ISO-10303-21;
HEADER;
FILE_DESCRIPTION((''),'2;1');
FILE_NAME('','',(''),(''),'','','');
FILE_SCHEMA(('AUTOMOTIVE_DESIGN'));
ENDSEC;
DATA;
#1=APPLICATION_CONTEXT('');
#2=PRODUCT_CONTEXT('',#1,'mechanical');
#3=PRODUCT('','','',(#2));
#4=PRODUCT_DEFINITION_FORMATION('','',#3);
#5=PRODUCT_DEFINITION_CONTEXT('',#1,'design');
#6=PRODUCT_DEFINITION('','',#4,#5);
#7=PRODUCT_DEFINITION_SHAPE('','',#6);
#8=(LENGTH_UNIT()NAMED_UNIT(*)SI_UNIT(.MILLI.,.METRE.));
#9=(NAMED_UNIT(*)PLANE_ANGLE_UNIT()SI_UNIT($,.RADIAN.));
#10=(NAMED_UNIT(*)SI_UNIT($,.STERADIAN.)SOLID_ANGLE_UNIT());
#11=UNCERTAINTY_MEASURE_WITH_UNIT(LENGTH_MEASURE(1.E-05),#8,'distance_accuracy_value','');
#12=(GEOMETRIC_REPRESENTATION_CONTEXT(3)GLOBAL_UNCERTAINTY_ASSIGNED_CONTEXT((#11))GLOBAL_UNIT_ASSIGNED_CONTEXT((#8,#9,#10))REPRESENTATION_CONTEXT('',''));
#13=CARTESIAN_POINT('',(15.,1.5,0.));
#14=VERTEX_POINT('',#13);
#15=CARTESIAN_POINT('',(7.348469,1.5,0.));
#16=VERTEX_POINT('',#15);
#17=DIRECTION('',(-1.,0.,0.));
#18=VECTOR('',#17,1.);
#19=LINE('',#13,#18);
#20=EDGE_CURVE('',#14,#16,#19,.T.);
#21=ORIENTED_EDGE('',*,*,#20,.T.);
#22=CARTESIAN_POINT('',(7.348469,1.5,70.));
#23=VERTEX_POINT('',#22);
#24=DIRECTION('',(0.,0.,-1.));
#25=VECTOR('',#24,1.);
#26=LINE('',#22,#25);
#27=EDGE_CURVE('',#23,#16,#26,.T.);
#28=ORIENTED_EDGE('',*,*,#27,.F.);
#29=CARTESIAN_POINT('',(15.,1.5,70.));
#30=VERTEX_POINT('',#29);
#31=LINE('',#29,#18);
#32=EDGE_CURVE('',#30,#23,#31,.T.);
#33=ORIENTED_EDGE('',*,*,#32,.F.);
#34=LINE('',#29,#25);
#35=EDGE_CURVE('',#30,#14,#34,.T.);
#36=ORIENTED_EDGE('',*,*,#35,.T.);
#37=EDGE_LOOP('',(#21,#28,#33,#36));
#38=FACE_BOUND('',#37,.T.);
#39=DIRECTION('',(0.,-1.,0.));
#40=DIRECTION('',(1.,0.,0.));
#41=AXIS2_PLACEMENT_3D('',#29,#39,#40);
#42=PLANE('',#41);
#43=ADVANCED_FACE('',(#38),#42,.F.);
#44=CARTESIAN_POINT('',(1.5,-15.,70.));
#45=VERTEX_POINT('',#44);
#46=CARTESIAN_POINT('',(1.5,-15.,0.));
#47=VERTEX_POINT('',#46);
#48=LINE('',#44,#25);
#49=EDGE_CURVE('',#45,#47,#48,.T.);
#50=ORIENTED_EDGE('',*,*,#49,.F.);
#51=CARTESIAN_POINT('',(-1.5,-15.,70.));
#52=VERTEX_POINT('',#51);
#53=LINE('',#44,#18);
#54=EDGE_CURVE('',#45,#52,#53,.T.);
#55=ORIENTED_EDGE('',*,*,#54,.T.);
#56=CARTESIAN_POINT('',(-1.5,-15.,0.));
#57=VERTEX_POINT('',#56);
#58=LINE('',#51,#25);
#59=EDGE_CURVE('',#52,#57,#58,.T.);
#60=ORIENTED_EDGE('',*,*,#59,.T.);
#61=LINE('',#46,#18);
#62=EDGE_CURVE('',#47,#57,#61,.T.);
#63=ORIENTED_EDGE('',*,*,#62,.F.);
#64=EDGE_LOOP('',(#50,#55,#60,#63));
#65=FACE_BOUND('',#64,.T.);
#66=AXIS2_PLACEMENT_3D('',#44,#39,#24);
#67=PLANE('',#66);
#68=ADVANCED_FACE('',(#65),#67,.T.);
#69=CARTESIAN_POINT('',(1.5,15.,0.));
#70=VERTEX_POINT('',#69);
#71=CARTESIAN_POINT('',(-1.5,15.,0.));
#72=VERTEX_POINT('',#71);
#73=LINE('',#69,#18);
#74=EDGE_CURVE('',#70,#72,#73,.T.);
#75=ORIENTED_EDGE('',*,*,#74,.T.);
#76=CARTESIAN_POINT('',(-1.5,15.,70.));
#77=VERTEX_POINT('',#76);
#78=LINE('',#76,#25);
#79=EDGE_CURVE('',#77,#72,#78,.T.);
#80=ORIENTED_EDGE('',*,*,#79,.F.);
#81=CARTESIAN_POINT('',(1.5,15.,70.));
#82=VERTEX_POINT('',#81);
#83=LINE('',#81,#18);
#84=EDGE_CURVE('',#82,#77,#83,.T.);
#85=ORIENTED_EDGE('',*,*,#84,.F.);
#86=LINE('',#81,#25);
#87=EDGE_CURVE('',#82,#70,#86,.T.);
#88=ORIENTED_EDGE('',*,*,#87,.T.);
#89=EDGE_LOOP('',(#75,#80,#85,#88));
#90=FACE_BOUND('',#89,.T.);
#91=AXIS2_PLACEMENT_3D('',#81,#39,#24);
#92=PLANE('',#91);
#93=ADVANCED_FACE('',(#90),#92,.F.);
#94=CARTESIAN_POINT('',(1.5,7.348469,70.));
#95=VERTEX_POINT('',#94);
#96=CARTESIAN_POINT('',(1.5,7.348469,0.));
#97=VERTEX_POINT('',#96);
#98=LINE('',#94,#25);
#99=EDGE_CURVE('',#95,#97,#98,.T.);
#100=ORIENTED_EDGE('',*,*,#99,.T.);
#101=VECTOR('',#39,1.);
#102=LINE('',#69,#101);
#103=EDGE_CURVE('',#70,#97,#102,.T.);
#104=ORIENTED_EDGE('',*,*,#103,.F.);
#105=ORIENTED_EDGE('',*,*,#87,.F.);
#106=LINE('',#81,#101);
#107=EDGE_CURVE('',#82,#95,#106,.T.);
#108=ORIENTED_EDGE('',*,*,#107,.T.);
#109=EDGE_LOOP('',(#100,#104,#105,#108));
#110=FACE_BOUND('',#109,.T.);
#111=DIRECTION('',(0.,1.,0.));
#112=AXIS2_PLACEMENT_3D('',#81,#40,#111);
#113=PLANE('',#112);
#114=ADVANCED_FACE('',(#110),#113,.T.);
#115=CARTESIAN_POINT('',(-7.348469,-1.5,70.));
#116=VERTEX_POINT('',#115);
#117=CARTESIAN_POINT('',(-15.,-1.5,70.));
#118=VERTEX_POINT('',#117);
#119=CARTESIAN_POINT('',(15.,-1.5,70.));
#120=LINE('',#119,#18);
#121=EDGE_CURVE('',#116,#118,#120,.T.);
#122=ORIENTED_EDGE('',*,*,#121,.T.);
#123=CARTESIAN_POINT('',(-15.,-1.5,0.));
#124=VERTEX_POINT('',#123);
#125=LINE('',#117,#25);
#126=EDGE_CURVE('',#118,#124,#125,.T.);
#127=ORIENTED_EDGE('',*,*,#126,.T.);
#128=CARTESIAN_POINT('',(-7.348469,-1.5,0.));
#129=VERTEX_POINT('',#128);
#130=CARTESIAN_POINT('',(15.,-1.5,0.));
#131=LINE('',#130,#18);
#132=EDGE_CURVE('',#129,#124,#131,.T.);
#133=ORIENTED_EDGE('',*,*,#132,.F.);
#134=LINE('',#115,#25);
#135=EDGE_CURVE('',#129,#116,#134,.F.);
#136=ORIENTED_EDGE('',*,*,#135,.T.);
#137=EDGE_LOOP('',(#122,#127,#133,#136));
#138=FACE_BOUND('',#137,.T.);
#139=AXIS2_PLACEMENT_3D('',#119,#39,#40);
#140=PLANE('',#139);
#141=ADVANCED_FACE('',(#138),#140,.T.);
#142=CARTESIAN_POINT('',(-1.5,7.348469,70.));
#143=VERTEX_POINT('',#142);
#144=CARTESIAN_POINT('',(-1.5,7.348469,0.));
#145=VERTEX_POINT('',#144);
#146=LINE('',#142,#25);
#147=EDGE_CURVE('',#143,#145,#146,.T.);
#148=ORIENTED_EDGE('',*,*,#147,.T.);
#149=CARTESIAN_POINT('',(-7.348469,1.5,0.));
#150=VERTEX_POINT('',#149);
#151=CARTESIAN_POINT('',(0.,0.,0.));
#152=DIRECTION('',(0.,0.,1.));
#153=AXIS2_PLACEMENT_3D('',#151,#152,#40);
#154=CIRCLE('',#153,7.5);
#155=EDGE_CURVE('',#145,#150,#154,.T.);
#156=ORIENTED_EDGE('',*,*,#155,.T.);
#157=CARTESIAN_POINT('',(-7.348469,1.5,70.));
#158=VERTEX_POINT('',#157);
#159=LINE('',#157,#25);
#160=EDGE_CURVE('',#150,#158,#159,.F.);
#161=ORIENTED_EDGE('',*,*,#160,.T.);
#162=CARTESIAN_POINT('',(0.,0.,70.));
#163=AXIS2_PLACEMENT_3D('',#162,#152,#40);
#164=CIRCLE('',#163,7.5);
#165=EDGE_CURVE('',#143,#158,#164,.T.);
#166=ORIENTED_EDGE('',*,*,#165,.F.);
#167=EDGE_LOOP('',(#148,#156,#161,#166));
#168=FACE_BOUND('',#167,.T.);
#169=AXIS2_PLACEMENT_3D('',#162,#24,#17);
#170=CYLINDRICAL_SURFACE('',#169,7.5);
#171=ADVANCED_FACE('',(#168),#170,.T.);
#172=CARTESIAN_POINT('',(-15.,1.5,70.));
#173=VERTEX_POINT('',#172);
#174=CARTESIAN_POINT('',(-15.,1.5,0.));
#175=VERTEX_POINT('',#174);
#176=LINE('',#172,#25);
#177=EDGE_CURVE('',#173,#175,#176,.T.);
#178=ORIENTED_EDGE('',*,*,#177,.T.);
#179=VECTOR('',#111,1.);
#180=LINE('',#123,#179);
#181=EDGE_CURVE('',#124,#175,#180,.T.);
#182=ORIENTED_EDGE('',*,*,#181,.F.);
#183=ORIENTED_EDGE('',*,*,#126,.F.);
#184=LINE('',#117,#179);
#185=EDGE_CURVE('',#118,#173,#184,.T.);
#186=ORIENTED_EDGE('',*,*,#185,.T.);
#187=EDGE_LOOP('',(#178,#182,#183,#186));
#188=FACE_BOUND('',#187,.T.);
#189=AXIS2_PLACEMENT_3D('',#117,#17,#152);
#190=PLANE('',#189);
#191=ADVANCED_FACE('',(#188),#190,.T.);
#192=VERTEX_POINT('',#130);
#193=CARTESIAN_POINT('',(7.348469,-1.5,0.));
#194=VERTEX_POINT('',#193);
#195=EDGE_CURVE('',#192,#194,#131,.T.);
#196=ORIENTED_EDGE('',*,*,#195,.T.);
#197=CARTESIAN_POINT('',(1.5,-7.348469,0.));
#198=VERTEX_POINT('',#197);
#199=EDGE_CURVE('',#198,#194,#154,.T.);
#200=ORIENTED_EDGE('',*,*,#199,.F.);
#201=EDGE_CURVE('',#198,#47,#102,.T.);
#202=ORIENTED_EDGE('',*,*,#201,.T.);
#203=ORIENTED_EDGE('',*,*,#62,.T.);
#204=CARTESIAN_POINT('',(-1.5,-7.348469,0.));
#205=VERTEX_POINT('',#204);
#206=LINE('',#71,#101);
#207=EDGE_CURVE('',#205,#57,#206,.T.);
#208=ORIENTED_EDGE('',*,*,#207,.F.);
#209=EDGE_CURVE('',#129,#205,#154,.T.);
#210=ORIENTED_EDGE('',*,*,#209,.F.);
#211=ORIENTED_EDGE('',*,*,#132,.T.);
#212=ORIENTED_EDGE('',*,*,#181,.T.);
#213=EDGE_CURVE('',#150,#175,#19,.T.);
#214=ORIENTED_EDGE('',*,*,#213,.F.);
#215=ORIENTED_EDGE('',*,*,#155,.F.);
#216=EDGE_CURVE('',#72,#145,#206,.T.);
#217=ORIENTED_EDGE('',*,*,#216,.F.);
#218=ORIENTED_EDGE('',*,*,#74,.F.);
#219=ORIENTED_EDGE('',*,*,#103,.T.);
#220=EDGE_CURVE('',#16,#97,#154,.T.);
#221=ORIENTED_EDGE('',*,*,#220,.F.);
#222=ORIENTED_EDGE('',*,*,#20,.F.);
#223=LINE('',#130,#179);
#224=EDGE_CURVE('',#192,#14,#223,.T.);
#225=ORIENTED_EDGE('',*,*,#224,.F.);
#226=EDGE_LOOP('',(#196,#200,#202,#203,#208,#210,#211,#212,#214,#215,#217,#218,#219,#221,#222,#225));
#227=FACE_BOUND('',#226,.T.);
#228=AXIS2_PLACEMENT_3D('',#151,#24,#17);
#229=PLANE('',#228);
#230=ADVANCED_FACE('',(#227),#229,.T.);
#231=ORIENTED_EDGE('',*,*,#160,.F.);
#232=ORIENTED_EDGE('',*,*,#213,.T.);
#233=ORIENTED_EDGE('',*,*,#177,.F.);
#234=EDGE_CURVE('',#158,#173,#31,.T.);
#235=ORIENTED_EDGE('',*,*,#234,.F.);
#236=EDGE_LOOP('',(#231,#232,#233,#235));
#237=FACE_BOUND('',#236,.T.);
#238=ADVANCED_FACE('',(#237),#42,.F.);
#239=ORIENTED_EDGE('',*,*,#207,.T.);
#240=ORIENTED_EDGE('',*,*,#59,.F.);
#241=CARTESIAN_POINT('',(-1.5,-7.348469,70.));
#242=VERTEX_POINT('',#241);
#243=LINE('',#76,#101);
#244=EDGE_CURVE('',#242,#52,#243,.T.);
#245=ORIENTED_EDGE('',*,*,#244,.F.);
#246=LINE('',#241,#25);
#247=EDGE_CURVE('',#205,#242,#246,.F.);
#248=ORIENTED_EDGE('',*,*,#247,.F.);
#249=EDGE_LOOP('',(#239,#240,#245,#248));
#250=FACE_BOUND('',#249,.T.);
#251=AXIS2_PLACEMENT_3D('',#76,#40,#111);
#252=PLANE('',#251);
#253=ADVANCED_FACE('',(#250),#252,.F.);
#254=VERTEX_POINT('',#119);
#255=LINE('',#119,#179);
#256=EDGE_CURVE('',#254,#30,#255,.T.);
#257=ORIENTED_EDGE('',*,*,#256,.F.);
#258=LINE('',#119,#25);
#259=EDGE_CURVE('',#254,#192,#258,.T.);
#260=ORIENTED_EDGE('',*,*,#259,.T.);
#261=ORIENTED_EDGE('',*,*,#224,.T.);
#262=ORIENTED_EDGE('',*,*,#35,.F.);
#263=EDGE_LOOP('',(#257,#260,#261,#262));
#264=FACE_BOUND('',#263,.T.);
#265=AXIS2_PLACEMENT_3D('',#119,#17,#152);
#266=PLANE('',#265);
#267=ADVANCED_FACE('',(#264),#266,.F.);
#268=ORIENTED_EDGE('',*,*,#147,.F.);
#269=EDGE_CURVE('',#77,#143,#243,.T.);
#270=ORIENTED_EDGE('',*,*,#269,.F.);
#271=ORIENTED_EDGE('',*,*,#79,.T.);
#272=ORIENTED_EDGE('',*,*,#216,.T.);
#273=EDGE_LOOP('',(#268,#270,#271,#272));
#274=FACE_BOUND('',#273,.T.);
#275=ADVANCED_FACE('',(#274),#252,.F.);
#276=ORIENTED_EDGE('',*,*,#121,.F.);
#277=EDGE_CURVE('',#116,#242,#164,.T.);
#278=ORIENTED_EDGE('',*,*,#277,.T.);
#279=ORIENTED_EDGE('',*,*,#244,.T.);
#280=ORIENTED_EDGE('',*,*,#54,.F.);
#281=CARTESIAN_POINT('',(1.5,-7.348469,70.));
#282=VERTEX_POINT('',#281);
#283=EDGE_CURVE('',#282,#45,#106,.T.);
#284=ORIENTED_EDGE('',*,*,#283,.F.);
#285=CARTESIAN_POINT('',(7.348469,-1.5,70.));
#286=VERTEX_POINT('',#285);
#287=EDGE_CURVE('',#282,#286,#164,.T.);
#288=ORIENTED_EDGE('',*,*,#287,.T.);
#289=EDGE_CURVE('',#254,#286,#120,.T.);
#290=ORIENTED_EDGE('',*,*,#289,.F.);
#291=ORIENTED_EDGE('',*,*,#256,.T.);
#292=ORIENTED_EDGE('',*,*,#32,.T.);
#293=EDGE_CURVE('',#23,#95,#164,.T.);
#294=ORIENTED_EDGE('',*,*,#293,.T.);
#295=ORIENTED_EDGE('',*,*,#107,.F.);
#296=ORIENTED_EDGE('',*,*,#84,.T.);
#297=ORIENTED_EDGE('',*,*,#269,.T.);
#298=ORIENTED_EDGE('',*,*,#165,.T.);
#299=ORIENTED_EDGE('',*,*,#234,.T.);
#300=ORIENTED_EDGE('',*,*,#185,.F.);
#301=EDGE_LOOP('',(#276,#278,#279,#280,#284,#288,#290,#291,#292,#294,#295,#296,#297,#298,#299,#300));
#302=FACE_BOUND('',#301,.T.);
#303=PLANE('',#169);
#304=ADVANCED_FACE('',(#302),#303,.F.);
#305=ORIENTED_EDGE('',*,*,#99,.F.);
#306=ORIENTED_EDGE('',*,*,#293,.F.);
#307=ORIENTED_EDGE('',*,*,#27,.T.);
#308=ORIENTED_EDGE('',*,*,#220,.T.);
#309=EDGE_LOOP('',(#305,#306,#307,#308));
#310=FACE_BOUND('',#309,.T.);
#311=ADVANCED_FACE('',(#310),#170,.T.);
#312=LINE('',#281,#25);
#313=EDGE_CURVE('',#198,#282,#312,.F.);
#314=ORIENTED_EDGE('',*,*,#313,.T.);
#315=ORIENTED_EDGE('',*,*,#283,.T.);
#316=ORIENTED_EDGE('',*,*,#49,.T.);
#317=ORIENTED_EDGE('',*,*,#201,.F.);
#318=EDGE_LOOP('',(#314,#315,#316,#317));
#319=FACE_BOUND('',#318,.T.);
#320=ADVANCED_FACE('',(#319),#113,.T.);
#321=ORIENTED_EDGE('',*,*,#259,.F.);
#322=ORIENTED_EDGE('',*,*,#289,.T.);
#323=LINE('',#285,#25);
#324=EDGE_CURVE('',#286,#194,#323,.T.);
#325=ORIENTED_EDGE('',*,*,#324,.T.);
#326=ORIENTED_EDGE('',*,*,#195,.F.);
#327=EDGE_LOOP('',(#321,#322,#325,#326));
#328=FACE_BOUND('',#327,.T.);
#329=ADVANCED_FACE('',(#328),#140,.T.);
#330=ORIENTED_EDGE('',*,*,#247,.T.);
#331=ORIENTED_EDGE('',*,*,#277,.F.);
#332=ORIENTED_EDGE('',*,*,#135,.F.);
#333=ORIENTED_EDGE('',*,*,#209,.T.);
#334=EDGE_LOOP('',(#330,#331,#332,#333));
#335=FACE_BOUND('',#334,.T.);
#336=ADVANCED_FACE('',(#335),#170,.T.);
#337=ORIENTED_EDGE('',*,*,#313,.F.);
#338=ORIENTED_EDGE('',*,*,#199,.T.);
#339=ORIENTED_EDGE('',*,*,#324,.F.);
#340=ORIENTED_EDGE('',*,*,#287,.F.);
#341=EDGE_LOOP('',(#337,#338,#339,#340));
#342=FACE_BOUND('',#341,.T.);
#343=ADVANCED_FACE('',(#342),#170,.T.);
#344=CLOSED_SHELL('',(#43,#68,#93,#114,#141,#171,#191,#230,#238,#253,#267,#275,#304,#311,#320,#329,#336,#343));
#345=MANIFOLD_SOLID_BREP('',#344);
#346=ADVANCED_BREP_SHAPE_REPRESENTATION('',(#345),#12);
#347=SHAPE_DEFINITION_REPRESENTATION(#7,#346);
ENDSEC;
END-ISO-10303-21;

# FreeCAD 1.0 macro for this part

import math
import FreeCAD as App
import Part
import Sketcher
from FreeCAD import Vector
Q = App.Units.Quantity

doc = App.newDocument("Part")
body = doc.addObject("PartDesign::Body", "Body")

sketch1 = body.newObject("Sketcher::SketchObject", "Sketch")
sketch1.AttachmentSupport = (doc.getObject("XY_Plane"), [""])
sketch1.MapMode = "FlatFace"
sketch1.addGeometry([
    Part.ArcOfCircle(Part.Circle(Vector(0, 0, 0), Vector(0, 0, 1), 7.5), math.radians(-78), math.radians(-12)),
    Part.LineSegment(Vector(7.3, -1.5, 0), Vector(15, -1.5, 0)),
    Part.LineSegment(Vector(15, -1.5, 0), Vector(15, 1.5, 0)),
    Part.LineSegment(Vector(15, 1.5, 0), Vector(7.3, 1.5, 0)),
    Part.ArcOfCircle(Part.Circle(Vector(0, 0, 0), Vector(0, 0, 1), 7.5), math.radians(12), math.radians(78)),
    Part.LineSegment(Vector(1.5, 7.3, 0), Vector(1.5, 15, 0)),
    Part.LineSegment(Vector(1.5, 15, 0), Vector(-1.5, 15, 0)),
    Part.LineSegment(Vector(-1.5, 15, 0), Vector(-1.5, 7.3, 0)),
    Part.ArcOfCircle(Part.Circle(Vector(0, 0, 0), Vector(0, 0, 1), 7.5), math.radians(102), math.radians(168)),
    Part.LineSegment(Vector(-7.3, 1.5, 0), Vector(-15, 1.5, 0)),
    Part.LineSegment(Vector(-15, 1.5, 0), Vector(-15, -1.5, 0)),
    Part.LineSegment(Vector(-15, -1.5, 0), Vector(-7.3, -1.5, 0)),
    Part.ArcOfCircle(Part.Circle(Vector(0, 0, 0), Vector(0, 0, 1), 7.5), math.radians(-168), math.radians(-102)),
    Part.LineSegment(Vector(-1.5, -7.3, 0), Vector(-1.5, -15, 0)),
    Part.LineSegment(Vector(-1.5, -15, 0), Vector(1.5, -15, 0)),
    Part.LineSegment(Vector(1.5, -15, 0), Vector(1.5, -7.3, 0)),
], False)
sketch1.addConstraint([
    Sketcher.Constraint("Coincident", 0, 2, 1, 1),
    Sketcher.Constraint("Coincident", 1, 2, 2, 1),
    Sketcher.Constraint("Coincident", 2, 2, 3, 1),
    Sketcher.Constraint("Coincident", 3, 2, 4, 1),
    Sketcher.Constraint("Coincident", 4, 2, 5, 1),
    Sketcher.Constraint("Coincident", 5, 2, 6, 1),
    Sketcher.Constraint("Coincident", 6, 2, 7, 1),
    Sketcher.Constraint("Coincident", 7, 2, 8, 1),
    Sketcher.Constraint("Coincident", 8, 2, 9, 1),
    Sketcher.Constraint("Coincident", 9, 2, 10, 1),
    Sketcher.Constraint("Coincident", 10, 2, 11, 1),
    Sketcher.Constraint("Coincident", 11, 2, 12, 1),
    Sketcher.Constraint("Coincident", 12, 2, 13, 1),
    Sketcher.Constraint("Coincident", 13, 2, 14, 1),
    Sketcher.Constraint("Coincident", 14, 2, 15, 1),
    Sketcher.Constraint("Coincident", 15, 2, 0, 1),
    Sketcher.Constraint("Horizontal", 1),
    Sketcher.Constraint("Vertical", 2),
    Sketcher.Constraint("Horizontal", 3),
    Sketcher.Constraint("Vertical", 5),
    Sketcher.Constraint("Horizontal", 6),
    Sketcher.Constraint("Vertical", 7),
    Sketcher.Constraint("Horizontal", 9),
    Sketcher.Constraint("Vertical", 10),
    Sketcher.Constraint("Horizontal", 11),
    Sketcher.Constraint("Vertical", 13),
    Sketcher.Constraint("Horizontal", 14),
    Sketcher.Constraint("Vertical", 15),
    Sketcher.Constraint("Coincident", 0, 3, -1, 1),
    Sketcher.Constraint("Coincident", 4, 3, -1, 1),
    Sketcher.Constraint("Coincident", 8, 3, -1, 1),
    Sketcher.Constraint("Coincident", 12, 3, -1, 1),
    Sketcher.Constraint("Equal", 0, 4),
    Sketcher.Constraint("Equal", 4, 8),
    Sketcher.Constraint("Equal", 8, 12),
    Sketcher.Constraint("Symmetric", 1, 2, 9, 2, -1, 1),
    Sketcher.Constraint("Symmetric", 5, 2, 13, 2, -1, 1),
    Sketcher.Constraint("Horizontal", 4, 2, 7, 2),
    Sketcher.Constraint("Horizontal", 3, 2, 8, 2),
    Sketcher.Constraint("Horizontal", 1, 2, 10, 2),
    Sketcher.Constraint("Horizontal", 12, 2, 15, 2),
    Sketcher.Constraint("Equal", 14, 2),
    Sketcher.Constraint("Equal", 11, 5),
    Sketcher.Constraint("Radius", 0, Q("7.5 mm")),
    Sketcher.Constraint("DistanceX", 6, 2, 6, 1, Q("3 mm")),
    Sketcher.Constraint("DistanceX", -1, 1, 1, 2, Q("15 mm")),
])
pad1 = body.newObject("PartDesign::Pad", "Pad")
pad1.Profile = sketch1
pad1.Length = 70

doc.recompute()
